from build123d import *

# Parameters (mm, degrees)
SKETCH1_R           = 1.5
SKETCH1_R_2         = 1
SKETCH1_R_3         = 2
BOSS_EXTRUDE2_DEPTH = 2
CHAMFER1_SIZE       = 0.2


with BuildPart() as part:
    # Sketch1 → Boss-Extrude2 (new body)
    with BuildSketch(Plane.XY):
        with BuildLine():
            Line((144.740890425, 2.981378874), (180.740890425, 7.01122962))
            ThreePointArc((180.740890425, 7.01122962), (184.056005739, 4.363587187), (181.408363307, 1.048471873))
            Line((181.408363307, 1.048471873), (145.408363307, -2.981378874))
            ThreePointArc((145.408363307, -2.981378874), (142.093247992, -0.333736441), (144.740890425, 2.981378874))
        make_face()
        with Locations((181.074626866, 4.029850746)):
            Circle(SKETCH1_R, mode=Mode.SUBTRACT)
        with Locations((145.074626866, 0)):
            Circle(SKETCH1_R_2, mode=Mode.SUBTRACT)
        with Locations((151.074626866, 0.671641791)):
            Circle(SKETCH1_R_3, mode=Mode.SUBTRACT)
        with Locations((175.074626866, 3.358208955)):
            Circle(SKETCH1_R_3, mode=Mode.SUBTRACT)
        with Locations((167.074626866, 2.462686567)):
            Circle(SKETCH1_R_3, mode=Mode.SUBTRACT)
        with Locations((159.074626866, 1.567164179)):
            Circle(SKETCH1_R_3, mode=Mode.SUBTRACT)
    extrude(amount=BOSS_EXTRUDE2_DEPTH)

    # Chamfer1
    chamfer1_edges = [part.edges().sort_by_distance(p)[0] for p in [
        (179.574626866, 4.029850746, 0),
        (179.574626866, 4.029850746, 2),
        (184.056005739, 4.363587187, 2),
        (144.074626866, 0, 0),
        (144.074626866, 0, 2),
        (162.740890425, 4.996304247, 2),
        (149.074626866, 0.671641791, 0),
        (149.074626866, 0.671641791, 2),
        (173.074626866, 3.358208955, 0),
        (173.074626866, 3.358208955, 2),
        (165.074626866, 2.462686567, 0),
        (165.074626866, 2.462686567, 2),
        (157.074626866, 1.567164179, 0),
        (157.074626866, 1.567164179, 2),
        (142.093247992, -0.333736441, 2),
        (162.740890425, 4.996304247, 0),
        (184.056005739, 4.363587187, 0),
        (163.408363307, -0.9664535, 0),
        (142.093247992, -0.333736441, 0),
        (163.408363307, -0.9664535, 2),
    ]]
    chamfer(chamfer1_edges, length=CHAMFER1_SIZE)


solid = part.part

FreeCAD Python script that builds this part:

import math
import FreeCAD as App
import Part
import Sketcher
from FreeCAD import Vector
Q = App.Units.Quantity


def edges_at(feature, points):
    """Names of the edges that pass closest to the given points."""
    edges = feature.Shape.Edges
    near = lambda p: min(range(len(edges)), key=lambda i: edges[i].distToShape(Part.Vertex(*p))[0])
    return sorted({f"Edge{near(p) + 1}" for p in points})

doc = App.newDocument("Part")
body = doc.addObject("PartDesign::Body", "Body")

sketch1 = doc.addObject("Sketcher::SketchObject", "Sketch")
body.addObject(sketch1)
sketch1.AttachmentSupport = (doc.XY_Plane, [""])
sketch1.MapMode = "FlatFace"
sketch1.addGeometry([
    Part.LineSegment(Vector(180.74089, 7.01123, 0), Vector(144.74089, 2.981379, 0)),
    Part.ArcOfCircle(Part.Circle(Vector(145.074627, 0, 0), Vector(0, 0, 1), 3), math.radians(96.387117), math.radians(276.387117)),
    Part.LineSegment(Vector(145.408363, -2.981379, 0), Vector(181.408363, 1.048472, 0)),
    Part.ArcOfCircle(Part.Circle(Vector(181.074627, 4.029851, 0), Vector(0, 0, 1), 3), math.radians(-83.612883), math.radians(96.387117)),
    Part.Circle(Vector(145.074627, 0, 0), Vector(0, 0, 1), 1),
    Part.Circle(Vector(159.074627, 1.567164, 0), Vector(0, 0, 1), 2),
    Part.Circle(Vector(151.074627, 0.671642, 0), Vector(0, 0, 1), 2),
    Part.Circle(Vector(175.074627, 3.358209, 0), Vector(0, 0, 1), 2),
    Part.Circle(Vector(167.074627, 2.462687, 0), Vector(0, 0, 1), 2),
    Part.Circle(Vector(181.074627, 4.029851, 0), Vector(0, 0, 1), 1.5),
], False)
sketch1.addConstraint([
    Sketcher.Constraint("Tangent", 0, 2, 1, 1),
    Sketcher.Constraint("Tangent", 1, 2, 2, 1),
    Sketcher.Constraint("Tangent", 2, 2, 3, 1),
    Sketcher.Constraint("Tangent", 3, 2, 0, 1),
    Sketcher.Constraint("Coincident", 4, 3, 1, 3),
    Sketcher.Constraint("Coincident", 9, 3, 3, 3),
    Sketcher.Constraint("Equal", 1, 3),
    Sketcher.Constraint("Equal", 5, 6),
    Sketcher.Constraint("Equal", 6, 7),
    Sketcher.Constraint("Equal", 7, 8),
    Sketcher.Constraint("PointOnObject", 1, 3, -1),
    Sketcher.Constraint("Diameter", 4, Q("2 mm")),
    Sketcher.Constraint("Diameter", 5, Q("4 mm")),
    Sketcher.Constraint("Diameter", 9, Q("3 mm")),
    Sketcher.Constraint("Radius", 1, Q("3 mm")),
    Sketcher.Constraint("DistanceX", 1, 3, 3, 3, Q("36 mm")),
    Sketcher.Constraint("DistanceX", 1, 3, 5, 3, Q("14 mm")),
    Sketcher.Constraint("DistanceX", 1, 3, 6, 3, Q("6 mm")),
    Sketcher.Constraint("DistanceX", 7, 3, 3, 3, Q("6 mm")),
    Sketcher.Constraint("DistanceX", 5, 3, 8, 3, Q("8 mm")),
    Sketcher.Constraint("Distance", 0, Q("36.224849 mm")),
    Sketcher.Constraint("DistanceY", -1, 1, 6, 3, Q("0.671642 mm")),
    Sketcher.Constraint("DistanceY", -1, 1, 7, 3, Q("3.358209 mm")),
    Sketcher.Constraint("DistanceX", -1, 1, 0, 2, Q("144.74089 mm")),
    Sketcher.Constraint("DistanceY", -1, 1, 5, 3, Q("1.567164 mm")),
    Sketcher.Constraint("DistanceY", -1, 1, 8, 3, Q("2.462687 mm")),
])
pad1 = doc.addObject("PartDesign::Pad", "Pad")
body.addObject(pad1)
pad1.Profile = sketch1
pad1.Length = 2
doc.recompute()

chamfer = doc.addObject("PartDesign::Chamfer", "Chamfer")
body.addObject(chamfer)
chamfer.Base = (pad1, edges_at(pad1, [
    (179.575, 4.03, 0),
    (179.575, 4.03, 2),
    (184.056, 4.364, 2),
    (144.075, 0, 0),
    (144.075, 0, 2),
    (162.741, 4.996, 2),
    (149.075, 0.672, 0),
    (149.075, 0.672, 2),
    (173.075, 3.358, 0),
    (173.075, 3.358, 2),
    (165.075, 2.463, 0),
    (165.075, 2.463, 2),
    (157.075, 1.567, 0),
    (157.075, 1.567, 2),
    (142.093, -0.334, 2),
    (162.741, 4.996, 0),
    (184.056, 4.364, 0),
    (163.408, -0.966, 0),
    (142.093, -0.334, 0),
    (163.408, -0.966, 2),
]))
chamfer.Size = 0.2

doc.recompute()
